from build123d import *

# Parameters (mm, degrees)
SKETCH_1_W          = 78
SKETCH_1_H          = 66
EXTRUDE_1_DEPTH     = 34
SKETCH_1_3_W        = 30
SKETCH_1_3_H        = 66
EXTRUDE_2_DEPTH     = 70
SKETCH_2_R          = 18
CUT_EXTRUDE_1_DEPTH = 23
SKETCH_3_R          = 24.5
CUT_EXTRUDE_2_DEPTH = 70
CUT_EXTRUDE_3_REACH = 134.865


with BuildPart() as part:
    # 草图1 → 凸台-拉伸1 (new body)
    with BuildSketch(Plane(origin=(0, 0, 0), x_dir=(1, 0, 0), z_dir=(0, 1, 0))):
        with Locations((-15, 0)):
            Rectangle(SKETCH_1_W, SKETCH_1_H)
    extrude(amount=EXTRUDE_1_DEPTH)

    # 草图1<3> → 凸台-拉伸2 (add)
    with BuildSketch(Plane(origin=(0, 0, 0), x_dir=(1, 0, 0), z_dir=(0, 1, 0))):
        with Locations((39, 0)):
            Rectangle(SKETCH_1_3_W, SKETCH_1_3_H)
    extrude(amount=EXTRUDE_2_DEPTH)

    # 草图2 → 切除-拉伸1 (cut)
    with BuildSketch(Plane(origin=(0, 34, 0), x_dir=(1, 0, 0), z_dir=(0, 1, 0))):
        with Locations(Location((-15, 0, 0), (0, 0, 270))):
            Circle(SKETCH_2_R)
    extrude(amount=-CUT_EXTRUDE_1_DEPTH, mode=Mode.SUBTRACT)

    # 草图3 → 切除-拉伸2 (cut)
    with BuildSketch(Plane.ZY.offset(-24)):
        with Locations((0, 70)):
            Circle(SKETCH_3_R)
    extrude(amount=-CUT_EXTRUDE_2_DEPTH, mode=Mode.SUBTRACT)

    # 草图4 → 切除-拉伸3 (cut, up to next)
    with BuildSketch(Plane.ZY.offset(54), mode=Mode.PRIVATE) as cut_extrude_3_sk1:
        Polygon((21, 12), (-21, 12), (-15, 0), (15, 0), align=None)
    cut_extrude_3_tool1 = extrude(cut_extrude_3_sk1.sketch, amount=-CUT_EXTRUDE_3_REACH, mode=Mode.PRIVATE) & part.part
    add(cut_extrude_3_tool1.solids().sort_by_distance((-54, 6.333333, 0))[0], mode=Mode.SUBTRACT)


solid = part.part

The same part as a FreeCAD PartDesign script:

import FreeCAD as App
import Part
import Sketcher
from FreeCAD import Vector
Q = App.Units.Quantity

doc = App.newDocument("Part")
body = doc.addObject("PartDesign::Body", "Body")

sketch1 = body.newObject("Sketcher::SketchObject", "Sketch")
sketch1.AttachmentSupport = (doc.getObject("XZ_Plane"), [""])
sketch1.MapMode = "FlatFace"
sketch1.addGeometry(Part.LineSegment(Vector(-54, -33, 0), Vector(-54, 33, 0)), False)
sketch1.addGeometry(Part.LineSegment(Vector(-54, 33, 0), Vector(24, 33, 0)), False)
sketch1.addGeometry(Part.LineSegment(Vector(24, 33, 0), Vector(24, -33, 0)), False)
sketch1.addGeometry(Part.LineSegment(Vector(24, -33, 0), Vector(-54, -33, 0)), False)
sketch1.addConstraint(Sketcher.Constraint("Coincident", 0, 2, 1, 1))
sketch1.addConstraint(Sketcher.Constraint("Coincident", 1, 2, 2, 1))
sketch1.addConstraint(Sketcher.Constraint("Coincident", 2, 2, 3, 1))
sketch1.addConstraint(Sketcher.Constraint("Coincident", 3, 2, 0, 1))
sketch1.addConstraint(Sketcher.Constraint("Vertical", 0))
sketch1.addConstraint(Sketcher.Constraint("Horizontal", 1))
sketch1.addConstraint(Sketcher.Constraint("Vertical", 2))
sketch1.addConstraint(Sketcher.Constraint("Horizontal", 3))
sketch1.addConstraint(Sketcher.Constraint("DistanceX", 1, 1, 1, 2, Q("78 mm")))
sketch1.addConstraint(Sketcher.Constraint("DistanceY", 0, 1, 0, 2, Q("66 mm")))
sketch1.addConstraint(Sketcher.Constraint("DistanceX", 0, 2, -1, 1, Q("54 mm")))
sketch1.addConstraint(Sketcher.Constraint("DistanceY", -1, 1, 0, 2, Q("33 mm")))
pad1 = body.newObject("PartDesign::Pad", "Pad")
pad1.Profile = sketch1
pad1.Length = 34
pad1.Reversed = True

sketch2 = body.newObject("Sketcher::SketchObject", "Sketch001")
sketch2.AttachmentSupport = (doc.getObject("XZ_Plane"), [""])
sketch2.MapMode = "FlatFace"
sketch2.addGeometry(Part.LineSegment(Vector(24, -33, 0), Vector(24, 33, 0)), False)
sketch2.addGeometry(Part.LineSegment(Vector(24, 33, 0), Vector(54, 33, 0)), False)
sketch2.addGeometry(Part.LineSegment(Vector(54, 33, 0), Vector(54, -33, 0)), False)
sketch2.addGeometry(Part.LineSegment(Vector(54, -33, 0), Vector(24, -33, 0)), False)
sketch2.addConstraint(Sketcher.Constraint("Coincident", 0, 2, 1, 1))
sketch2.addConstraint(Sketcher.Constraint("Coincident", 1, 2, 2, 1))
sketch2.addConstraint(Sketcher.Constraint("Coincident", 2, 2, 3, 1))
sketch2.addConstraint(Sketcher.Constraint("Coincident", 3, 2, 0, 1))
sketch2.addConstraint(Sketcher.Constraint("Vertical", 0))
sketch2.addConstraint(Sketcher.Constraint("Horizontal", 1))
sketch2.addConstraint(Sketcher.Constraint("Vertical", 2))
sketch2.addConstraint(Sketcher.Constraint("Horizontal", 3))
sketch2.addConstraint(Sketcher.Constraint("DistanceX", 1, 1, 1, 2, Q("30 mm")))
sketch2.addConstraint(Sketcher.Constraint("DistanceY", 0, 1, 0, 2, Q("66 mm")))
sketch2.addConstraint(Sketcher.Constraint("DistanceX", -1, 1, 0, 2, Q("24 mm")))
sketch2.addConstraint(Sketcher.Constraint("DistanceY", -1, 1, 0, 2, Q("33 mm")))
pad2 = body.newObject("PartDesign::Pad", "Pad001")
pad2.Profile = sketch2
pad2.Length = 70
pad2.Reversed = True

sketch3 = body.newObject("Sketcher::SketchObject", "Sketch002")
sketch3.AttachmentSupport = (doc.getObject("XZ_Plane"), [""])
sketch3.MapMode = "FlatFace"
sketch3.AttachmentOffset = App.Placement(Vector(0, 0, -34), App.Rotation())
sketch3.addGeometry(Part.Circle(Vector(-15, 0, 0), Vector(0, 0, 1), 18), False)
sketch3.addConstraint(Sketcher.Constraint("PointOnObject", 0, 3, -1))
sketch3.addConstraint(Sketcher.Constraint("Diameter", 0, Q("36 mm")))
sketch3.addConstraint(Sketcher.Constraint("DistanceX", 0, 3, -1, 1, Q("15 mm")))
pocket1 = body.newObject("PartDesign::Pocket", "Pocket")
pocket1.Profile = sketch3
pocket1.Length = 23
pocket1.Reversed = True

sketch4 = body.newObject("Sketcher::SketchObject", "Sketch003")
sketch4.AttachmentSupport = (doc.getObject("YZ_Plane"), [""])
sketch4.MapMode = "FlatFace"
sketch4.AttachmentOffset = App.Placement(Vector(0, 0, 24), App.Rotation())
sketch4.addGeometry(Part.Circle(Vector(70, 0, 0), Vector(0, 0, 1), 24.5), False)
sketch4.addConstraint(Sketcher.Constraint("PointOnObject", 0, 3, -1))
sketch4.addConstraint(Sketcher.Constraint("Diameter", 0, Q("49 mm")))
sketch4.addConstraint(Sketcher.Constraint("DistanceX", -1, 1, 0, 3, Q("70 mm")))
pocket2 = body.newObject("PartDesign::Pocket", "Pocket001")
pocket2.Profile = sketch4
pocket2.Length = 70
pocket2.Reversed = True

sketch5 = body.newObject("Sketcher::SketchObject", "Sketch004")
sketch5.AttachmentSupport = (doc.getObject("YZ_Plane"), [""])
sketch5.MapMode = "FlatFace"
sketch5.AttachmentOffset = App.Placement(Vector(0, 0, -54), App.Rotation())
sketch5.addGeometry(Part.LineSegment(Vector(12, 21, 0), Vector(12, -21, 0)), False)
sketch5.addGeometry(Part.LineSegment(Vector(12, -21, 0), Vector(0, -15, 0)), False)
sketch5.addGeometry(Part.LineSegment(Vector(0, -15, 0), Vector(0, 15, 0)), False)
sketch5.addGeometry(Part.LineSegment(Vector(0, 15, 0), Vector(12, 21, 0)), False)
sketch5.addConstraint(Sketcher.Constraint("Coincident", 0, 2, 1, 1))
sketch5.addConstraint(Sketcher.Constraint("Coincident", 1, 2, 2, 1))
sketch5.addConstraint(Sketcher.Constraint("Coincident", 2, 2, 3, 1))
sketch5.addConstraint(Sketcher.Constraint("Coincident", 3, 2, 0, 1))
sketch5.addConstraint(Sketcher.Constraint("Vertical", 0))
sketch5.addConstraint(Sketcher.Constraint("Vertical", 2))
sketch5.addConstraint(Sketcher.Constraint("Symmetric", 1, 2, 2, 2, -1, 1))
sketch5.addConstraint(Sketcher.Constraint("Equal", 1, 3))
sketch5.addConstraint(Sketcher.Constraint("DistanceY", 0, 2, 0, 1, Q("42 mm")))
sketch5.addConstraint(Sketcher.Constraint("DistanceY", 2, 1, 2, 2, Q("30 mm")))
sketch5.addConstraint(Sketcher.Constraint("DistanceX", -1, 1, 0, 2, Q("12 mm")))
pocket3 = body.newObject("PartDesign::Pocket", "Pocket002")
pocket3.Profile = sketch5
pocket3.Type = "UpToFirst"
pocket3.Reversed = True

doc.recompute()
